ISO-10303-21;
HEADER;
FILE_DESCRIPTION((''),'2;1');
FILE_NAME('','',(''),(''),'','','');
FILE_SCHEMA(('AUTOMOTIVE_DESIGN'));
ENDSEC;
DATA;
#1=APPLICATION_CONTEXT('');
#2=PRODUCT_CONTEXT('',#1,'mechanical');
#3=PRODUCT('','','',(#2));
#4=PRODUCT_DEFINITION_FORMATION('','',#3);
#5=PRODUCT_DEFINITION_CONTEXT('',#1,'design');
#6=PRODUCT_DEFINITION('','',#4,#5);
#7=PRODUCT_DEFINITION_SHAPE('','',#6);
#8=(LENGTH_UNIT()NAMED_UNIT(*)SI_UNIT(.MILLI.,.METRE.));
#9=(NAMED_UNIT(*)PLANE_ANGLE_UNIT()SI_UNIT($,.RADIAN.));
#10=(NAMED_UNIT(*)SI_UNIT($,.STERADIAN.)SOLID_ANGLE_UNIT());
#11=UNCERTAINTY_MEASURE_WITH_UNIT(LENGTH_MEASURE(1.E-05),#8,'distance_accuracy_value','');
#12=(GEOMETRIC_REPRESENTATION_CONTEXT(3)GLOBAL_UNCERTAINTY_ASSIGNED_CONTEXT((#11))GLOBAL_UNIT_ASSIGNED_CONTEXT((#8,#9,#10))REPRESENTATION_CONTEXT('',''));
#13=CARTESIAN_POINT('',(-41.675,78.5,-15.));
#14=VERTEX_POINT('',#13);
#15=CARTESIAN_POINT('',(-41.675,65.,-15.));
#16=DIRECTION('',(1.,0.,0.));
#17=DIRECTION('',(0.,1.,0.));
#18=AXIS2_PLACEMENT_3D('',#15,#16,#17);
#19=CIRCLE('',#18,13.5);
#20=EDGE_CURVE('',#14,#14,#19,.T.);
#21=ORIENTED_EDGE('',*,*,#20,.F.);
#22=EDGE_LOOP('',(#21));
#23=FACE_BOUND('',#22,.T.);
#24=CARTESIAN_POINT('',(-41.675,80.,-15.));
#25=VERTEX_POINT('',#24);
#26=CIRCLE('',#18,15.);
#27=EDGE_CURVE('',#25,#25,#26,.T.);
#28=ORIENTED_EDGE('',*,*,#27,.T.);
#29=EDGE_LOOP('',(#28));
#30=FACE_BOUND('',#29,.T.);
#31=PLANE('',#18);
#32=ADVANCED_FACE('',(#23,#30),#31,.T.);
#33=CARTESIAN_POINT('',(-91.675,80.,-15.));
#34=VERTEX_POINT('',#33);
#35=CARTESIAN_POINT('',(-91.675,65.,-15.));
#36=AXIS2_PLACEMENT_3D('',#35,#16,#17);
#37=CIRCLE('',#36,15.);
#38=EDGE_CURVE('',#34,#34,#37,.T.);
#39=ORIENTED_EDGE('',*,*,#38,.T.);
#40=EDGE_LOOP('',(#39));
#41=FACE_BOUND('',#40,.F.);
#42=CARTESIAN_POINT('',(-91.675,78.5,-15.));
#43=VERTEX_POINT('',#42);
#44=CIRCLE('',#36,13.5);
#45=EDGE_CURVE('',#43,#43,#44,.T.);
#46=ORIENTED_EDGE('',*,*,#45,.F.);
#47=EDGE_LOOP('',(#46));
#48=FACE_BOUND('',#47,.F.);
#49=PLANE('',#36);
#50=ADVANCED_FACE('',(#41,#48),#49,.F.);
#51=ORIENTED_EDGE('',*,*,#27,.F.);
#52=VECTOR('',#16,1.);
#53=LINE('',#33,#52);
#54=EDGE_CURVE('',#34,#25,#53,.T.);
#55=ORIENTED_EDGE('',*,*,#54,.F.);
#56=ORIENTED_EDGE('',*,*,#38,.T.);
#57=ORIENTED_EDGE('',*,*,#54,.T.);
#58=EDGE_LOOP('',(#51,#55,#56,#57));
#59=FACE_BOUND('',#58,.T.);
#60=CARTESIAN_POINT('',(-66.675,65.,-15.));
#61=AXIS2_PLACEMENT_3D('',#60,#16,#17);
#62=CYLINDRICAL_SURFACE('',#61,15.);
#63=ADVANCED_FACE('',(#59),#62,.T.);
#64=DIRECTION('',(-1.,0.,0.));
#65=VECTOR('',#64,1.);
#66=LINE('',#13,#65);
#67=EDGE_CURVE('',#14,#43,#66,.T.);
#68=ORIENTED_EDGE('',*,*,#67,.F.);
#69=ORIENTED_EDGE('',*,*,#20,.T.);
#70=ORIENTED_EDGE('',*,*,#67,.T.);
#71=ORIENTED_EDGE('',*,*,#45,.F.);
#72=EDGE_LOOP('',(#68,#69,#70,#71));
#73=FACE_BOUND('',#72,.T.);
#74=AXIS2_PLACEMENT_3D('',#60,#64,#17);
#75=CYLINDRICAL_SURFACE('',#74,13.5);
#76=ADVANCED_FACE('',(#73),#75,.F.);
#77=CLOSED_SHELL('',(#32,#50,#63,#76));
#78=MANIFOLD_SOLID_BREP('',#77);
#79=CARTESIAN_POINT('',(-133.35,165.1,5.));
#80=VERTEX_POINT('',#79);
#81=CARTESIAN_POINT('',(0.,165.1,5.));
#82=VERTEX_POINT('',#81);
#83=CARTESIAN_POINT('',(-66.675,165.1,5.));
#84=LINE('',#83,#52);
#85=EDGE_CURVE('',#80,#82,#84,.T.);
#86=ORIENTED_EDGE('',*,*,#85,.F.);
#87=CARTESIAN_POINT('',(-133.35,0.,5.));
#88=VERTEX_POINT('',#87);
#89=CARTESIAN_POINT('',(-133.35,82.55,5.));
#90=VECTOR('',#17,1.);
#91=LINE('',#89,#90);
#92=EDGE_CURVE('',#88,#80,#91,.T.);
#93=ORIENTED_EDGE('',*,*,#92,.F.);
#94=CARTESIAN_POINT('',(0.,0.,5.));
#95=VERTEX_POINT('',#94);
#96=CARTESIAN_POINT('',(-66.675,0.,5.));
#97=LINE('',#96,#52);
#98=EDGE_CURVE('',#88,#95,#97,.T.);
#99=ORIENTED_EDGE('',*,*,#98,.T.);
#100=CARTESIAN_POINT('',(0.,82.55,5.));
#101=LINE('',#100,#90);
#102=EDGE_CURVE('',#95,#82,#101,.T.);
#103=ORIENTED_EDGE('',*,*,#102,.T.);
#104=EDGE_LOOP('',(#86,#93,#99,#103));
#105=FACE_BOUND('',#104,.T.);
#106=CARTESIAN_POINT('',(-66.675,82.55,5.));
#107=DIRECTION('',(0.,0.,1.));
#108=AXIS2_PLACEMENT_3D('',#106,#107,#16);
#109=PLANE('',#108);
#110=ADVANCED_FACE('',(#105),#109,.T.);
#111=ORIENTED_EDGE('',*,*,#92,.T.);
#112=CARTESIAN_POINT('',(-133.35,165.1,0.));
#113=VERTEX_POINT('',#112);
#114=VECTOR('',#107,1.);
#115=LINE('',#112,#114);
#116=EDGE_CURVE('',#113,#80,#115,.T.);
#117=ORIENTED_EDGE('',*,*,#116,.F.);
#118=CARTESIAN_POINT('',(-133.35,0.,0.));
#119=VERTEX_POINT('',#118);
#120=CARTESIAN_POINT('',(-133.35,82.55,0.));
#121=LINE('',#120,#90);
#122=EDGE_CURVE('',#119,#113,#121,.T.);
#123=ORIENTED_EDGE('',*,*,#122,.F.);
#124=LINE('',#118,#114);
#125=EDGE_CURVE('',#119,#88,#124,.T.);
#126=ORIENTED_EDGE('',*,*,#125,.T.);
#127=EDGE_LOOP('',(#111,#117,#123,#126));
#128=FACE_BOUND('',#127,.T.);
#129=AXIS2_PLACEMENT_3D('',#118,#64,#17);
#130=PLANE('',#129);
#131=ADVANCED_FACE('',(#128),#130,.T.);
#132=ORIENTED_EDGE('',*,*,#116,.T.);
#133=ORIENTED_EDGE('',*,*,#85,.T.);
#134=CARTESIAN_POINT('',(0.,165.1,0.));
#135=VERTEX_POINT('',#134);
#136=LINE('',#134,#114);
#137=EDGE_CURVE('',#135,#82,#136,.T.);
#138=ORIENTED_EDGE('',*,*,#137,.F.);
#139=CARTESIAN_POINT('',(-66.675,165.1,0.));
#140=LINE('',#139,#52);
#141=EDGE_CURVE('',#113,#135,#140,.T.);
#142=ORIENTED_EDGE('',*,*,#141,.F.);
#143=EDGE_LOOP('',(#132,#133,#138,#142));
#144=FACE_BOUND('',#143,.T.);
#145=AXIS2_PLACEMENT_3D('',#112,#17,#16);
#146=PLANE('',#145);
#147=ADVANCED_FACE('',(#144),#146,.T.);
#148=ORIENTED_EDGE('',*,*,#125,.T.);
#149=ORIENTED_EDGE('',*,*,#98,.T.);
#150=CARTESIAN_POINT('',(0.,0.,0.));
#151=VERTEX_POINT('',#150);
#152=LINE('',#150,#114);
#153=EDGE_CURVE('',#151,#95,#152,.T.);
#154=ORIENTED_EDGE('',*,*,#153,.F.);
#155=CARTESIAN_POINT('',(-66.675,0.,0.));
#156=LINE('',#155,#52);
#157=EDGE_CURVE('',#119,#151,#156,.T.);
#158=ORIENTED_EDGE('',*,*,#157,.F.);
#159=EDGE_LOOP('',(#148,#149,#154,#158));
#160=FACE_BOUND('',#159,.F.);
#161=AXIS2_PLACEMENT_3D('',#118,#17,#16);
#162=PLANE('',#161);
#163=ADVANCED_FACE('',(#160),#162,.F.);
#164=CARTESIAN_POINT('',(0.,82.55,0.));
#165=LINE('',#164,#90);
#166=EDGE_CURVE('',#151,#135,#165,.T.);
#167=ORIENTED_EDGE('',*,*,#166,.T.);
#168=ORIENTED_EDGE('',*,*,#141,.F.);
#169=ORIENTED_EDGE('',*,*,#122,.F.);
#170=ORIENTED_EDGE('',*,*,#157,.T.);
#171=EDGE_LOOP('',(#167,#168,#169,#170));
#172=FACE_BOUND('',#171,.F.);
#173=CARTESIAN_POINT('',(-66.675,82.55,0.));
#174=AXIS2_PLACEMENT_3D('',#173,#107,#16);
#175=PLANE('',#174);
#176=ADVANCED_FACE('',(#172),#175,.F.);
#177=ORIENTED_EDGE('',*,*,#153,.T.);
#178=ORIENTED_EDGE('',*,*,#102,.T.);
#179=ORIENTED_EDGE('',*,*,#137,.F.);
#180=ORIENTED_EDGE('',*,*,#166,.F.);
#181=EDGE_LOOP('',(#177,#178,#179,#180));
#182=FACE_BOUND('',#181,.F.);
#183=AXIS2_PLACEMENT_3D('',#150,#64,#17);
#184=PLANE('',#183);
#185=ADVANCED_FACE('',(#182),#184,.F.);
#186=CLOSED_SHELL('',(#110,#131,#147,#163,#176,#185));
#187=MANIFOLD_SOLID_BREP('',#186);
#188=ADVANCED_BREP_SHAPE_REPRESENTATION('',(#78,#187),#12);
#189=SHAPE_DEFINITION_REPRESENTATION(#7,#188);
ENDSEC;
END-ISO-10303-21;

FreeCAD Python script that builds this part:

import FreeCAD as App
import Part
import Sketcher

doc = App.newDocument("Part")
body = doc.addObject("PartDesign::Body", "Body")

# Sketch on XY plane
sketch1 = body.newObject("Sketcher::SketchObject", "Sketch")
sketch1.AttachmentSupport = (doc.getObject("XY_Plane"), [""])
sketch1.MapMode = "FlatFace"
sketch1.addGeometry(Part.LineSegment(App.Vector(-133, 165, 0), App.Vector(-133, 0, 0)), False)
sketch1.addGeometry(Part.LineSegment(App.Vector(-133, 0, 0), App.Vector(0, 0, 0)), False)
sketch1.addGeometry(Part.LineSegment(App.Vector(0, 0, 0), App.Vector(0, 165, 0)), False)
sketch1.addGeometry(Part.LineSegment(App.Vector(0, 165, 0), App.Vector(-133, 165, 0)), False)
sketch1.addConstraint(Sketcher.Constraint("Coincident", 0, 2, 1, 1))
sketch1.addConstraint(Sketcher.Constraint("Coincident", 1, 2, 2, 1))
sketch1.addConstraint(Sketcher.Constraint("Coincident", 2, 2, 3, 1))
sketch1.addConstraint(Sketcher.Constraint("Coincident", 3, 2, 0, 1))
sketch1.addConstraint(Sketcher.Constraint("Vertical", 0))
sketch1.addConstraint(Sketcher.Constraint("Horizontal", 1))
sketch1.addConstraint(Sketcher.Constraint("Vertical", 2))
sketch1.addConstraint(Sketcher.Constraint("Horizontal", 3))
sketch1.addConstraint(Sketcher.Constraint("Coincident", 1, 2, -1, 1))
sketch1.addConstraint(Sketcher.Constraint("DistanceY", 0, 2, 0, 1, 165.1))
sketch1.addConstraint(Sketcher.Constraint("DistanceX", 1, 1, 1, 2, 133.35))
pad1 = body.newObject("PartDesign::Pad", "Pad")
pad1.Profile = sketch1
pad1.Length = 5
body2 = doc.addObject("PartDesign::Body", "Body001")

# Sketch on YZ plane
sketch2 = body2.newObject("Sketcher::SketchObject", "Sketch001")
sketch2.AttachmentSupport = (doc.getObject("YZ_Plane001"), [""])
sketch2.MapMode = "FlatFace"
sketch2.AttachmentOffset = App.Placement(App.Vector(0, 0, -66.675), App.Rotation())
sketch2.addGeometry(Part.Circle(App.Vector(65, -15, 0), App.Vector(0, 0, 1), 15), False)
sketch2.addGeometry(Part.Circle(App.Vector(65, -15, 0), App.Vector(0, 0, 1), 14), False)
sketch2.addConstraint(Sketcher.Constraint("Coincident", 1, 3, 0, 3))
sketch2.addConstraint(Sketcher.Constraint("Diameter", 0, 30.0))
sketch2.addConstraint(Sketcher.Constraint("Diameter", 1, 27.0))
sketch2.addConstraint(Sketcher.Constraint("DistanceX", -1, 1, 0, 3, 65.0))
sketch2.addConstraint(Sketcher.Constraint("DistanceY", 0, 3, -1, 1, 15.0))
pad2 = body2.newObject("PartDesign::Pad", "Pad001")
pad2.Profile = sketch2
pad2.Length = 50
pad2.Midplane = True

doc.recompute()
